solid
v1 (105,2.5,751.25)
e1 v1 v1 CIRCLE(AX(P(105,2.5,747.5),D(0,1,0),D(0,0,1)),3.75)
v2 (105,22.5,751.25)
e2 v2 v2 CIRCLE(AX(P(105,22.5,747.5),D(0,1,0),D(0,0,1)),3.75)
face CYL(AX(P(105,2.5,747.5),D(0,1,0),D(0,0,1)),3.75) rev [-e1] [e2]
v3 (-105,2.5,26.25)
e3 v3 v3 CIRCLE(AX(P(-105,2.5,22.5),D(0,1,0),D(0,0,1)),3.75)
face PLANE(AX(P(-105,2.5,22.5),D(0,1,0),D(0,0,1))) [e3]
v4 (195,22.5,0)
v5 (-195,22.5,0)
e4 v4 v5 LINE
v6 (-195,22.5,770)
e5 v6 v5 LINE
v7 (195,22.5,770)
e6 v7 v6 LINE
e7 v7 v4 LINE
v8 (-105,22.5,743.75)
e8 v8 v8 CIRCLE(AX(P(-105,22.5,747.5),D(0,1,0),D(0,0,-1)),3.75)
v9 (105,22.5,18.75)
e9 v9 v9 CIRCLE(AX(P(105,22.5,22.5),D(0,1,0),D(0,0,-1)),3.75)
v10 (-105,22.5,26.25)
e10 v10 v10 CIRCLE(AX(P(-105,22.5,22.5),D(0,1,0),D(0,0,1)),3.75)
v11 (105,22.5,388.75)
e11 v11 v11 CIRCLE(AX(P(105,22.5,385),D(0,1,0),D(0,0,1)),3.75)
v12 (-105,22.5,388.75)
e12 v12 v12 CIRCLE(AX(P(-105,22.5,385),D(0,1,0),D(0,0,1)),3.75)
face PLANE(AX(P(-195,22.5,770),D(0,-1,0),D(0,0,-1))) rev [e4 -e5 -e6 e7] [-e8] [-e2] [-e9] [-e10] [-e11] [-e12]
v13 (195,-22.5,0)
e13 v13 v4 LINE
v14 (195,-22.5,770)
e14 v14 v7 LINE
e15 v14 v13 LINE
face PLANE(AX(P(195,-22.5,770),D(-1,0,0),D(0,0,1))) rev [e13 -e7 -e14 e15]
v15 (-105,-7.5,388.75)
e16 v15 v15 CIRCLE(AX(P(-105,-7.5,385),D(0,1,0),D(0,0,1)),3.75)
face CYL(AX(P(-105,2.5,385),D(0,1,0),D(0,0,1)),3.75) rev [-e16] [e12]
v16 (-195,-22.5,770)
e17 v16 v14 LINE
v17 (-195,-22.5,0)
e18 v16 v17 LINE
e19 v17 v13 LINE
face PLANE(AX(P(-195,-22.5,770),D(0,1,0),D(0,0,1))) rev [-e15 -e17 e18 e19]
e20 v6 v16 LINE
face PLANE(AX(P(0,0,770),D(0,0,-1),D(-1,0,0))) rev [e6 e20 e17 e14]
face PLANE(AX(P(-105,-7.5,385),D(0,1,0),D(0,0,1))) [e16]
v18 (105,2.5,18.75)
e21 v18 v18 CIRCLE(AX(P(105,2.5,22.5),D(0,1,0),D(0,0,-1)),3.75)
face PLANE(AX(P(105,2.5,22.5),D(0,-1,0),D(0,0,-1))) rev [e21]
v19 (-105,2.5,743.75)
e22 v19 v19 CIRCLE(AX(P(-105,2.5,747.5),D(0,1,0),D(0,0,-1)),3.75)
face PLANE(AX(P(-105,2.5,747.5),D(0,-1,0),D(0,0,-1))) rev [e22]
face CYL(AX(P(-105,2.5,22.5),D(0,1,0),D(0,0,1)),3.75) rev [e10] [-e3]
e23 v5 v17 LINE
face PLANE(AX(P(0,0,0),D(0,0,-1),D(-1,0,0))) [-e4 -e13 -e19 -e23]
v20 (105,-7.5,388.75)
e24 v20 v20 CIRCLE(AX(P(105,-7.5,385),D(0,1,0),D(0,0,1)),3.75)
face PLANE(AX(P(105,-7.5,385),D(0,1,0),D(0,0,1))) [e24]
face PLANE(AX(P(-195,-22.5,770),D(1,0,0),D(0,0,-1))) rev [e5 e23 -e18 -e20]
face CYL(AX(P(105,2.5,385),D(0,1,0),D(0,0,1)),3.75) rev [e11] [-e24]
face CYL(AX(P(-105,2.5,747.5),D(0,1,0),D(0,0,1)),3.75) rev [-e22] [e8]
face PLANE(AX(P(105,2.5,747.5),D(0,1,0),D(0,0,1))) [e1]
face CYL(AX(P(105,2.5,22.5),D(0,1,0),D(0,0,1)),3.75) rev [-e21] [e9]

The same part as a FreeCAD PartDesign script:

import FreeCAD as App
import Part
import Sketcher

V = App.Vector
Q = App.Units.Quantity


def add_polygon(sketch, points):
    """Adds a closed chain of lines whose ends are joined by coincident constraints."""
    first, n = sketch.GeometryCount, len(points)
    for a, b in zip(points, points[1:] + points[:1]):
        sketch.addGeometry(Part.LineSegment(App.Vector(*a, 0), App.Vector(*b, 0)), False)
    for i in range(n):
        sketch.addConstraint(Sketcher.Constraint("Coincident", first + i, 2, first + (i + 1) % n, 1))

doc = App.newDocument("Part")
body = doc.addObject("PartDesign::Body", "Body")

# Sketch on XY plane
sketch1 = body.newObject("Sketcher::SketchObject", "Sketch")
sketch1.AttachmentSupport = (doc.getObject("XY_Plane"), [""])
sketch1.MapMode = "FlatFace"
add_polygon(sketch1, [(-195, 22), (-195, -22), (195, -22), (195, 22)])  # lines 0-3
sketch1.addConstraint(Sketcher.Constraint("Vertical", 0))
sketch1.addConstraint(Sketcher.Constraint("Horizontal", 1))
sketch1.addConstraint(Sketcher.Constraint("Vertical", 2))
sketch1.addConstraint(Sketcher.Constraint("Horizontal", 3))
sketch1.addConstraint(Sketcher.Constraint("Symmetric", 0, 2, 2, 2, -1, 1))
sketch1.addConstraint(Sketcher.Constraint("DistanceX", 1, 1, 1, 2, Q("390 mm")))
sketch1.addConstraint(Sketcher.Constraint("DistanceY", 0, 2, 0, 1, Q("45 mm")))
pad1 = body.newObject("PartDesign::Pad", "Pad")
pad1.Profile = sketch1
pad1.Length = 770

# Sketch on XZ plane
sketch2 = body.newObject("Sketcher::SketchObject", "Sketch001")
sketch2.AttachmentSupport = (doc.getObject("XZ_Plane"), [""])
sketch2.MapMode = "FlatFace"
sketch2.AttachmentOffset = App.Placement(V(0, 0, -22.5), App.Rotation())
sketch2.addGeometry(Part.Circle(V(-105, 22.5, 0), V(0, 0, 1), 3.8), False)
sketch2.addGeometry(Part.Circle(V(105, 22.5, 0), V(0, 0, 1), 3.8), False)
sketch2.addGeometry(Part.Circle(V(105, 747.5, 0), V(0, 0, 1), 3.8), False)
sketch2.addGeometry(Part.Circle(V(-105, 747.5, 0), V(0, 0, 1), 3.8), False)
sketch2.addGeometry(Part.Circle(V(-105, 385, 0), V(0, 0, 1), 3.8), False)
sketch2.addGeometry(Part.Circle(V(105, 385, 0), V(0, 0, 1), 3.8), False)
sketch2.addConstraint(Sketcher.Constraint("Equal", 0, 1))
sketch2.addConstraint(Sketcher.Constraint("Equal", 1, 2))
sketch2.addConstraint(Sketcher.Constraint("Equal", 2, 3))
sketch2.addConstraint(Sketcher.Constraint("Equal", 3, 4))
sketch2.addConstraint(Sketcher.Constraint("Equal", 4, 5))
sketch2.addConstraint(Sketcher.Constraint("Symmetric", 0, 3, 1, 3, -2))
sketch2.addConstraint(Sketcher.Constraint("Symmetric", 2, 3, 3, 3, -2))
sketch2.addConstraint(Sketcher.Constraint("Symmetric", 4, 3, 5, 3, -2))
sketch2.addConstraint(Sketcher.Constraint("Vertical", 1, 3, 2, 3))
sketch2.addConstraint(Sketcher.Constraint("Vertical", 3, 3, 4, 3))
sketch2.addConstraint(Sketcher.Constraint("Diameter", 0, Q("7.5 mm")))
sketch2.addConstraint(Sketcher.Constraint("DistanceX", 0, 3, -1, 1, Q("105 mm")))
sketch2.addConstraint(Sketcher.Constraint("DistanceY", -1, 1, 4, 3, Q("385 mm")))
sketch2.addConstraint(Sketcher.Constraint("DistanceY", 1, 3, 2, 3, Q("725 mm")))
sketch2.addConstraint(Sketcher.Constraint("DistanceY", -1, 1, 0, 3, Q("22.5 mm")))
pocket1 = body.newObject("PartDesign::Pocket", "Pocket")
pocket1.Profile = sketch2
pocket1.Length = 20
pocket1.Reversed = True

# Sketch on XZ plane
sketch3 = body.newObject("Sketcher::SketchObject", "Sketch002")
sketch3.AttachmentSupport = (doc.getObject("XZ_Plane"), [""])
sketch3.MapMode = "FlatFace"
sketch3.AttachmentOffset = App.Placement(V(0, 0, -22.5), App.Rotation())
sketch3.addGeometry(Part.Circle(V(-105, 385, 0), V(0, 0, 1), 3.8), False)
sketch3.addGeometry(Part.Circle(V(105, 385, 0), V(0, 0, 1), 3.8), False)
sketch3.addConstraint(Sketcher.Constraint("Equal", 0, 1))
sketch3.addConstraint(Sketcher.Constraint("Symmetric", 0, 3, 1, 3, -2))
sketch3.addConstraint(Sketcher.Constraint("Diameter", 0, Q("7.5 mm")))
sketch3.addConstraint(Sketcher.Constraint("DistanceX", 0, 3, -1, 1, Q("105 mm")))
sketch3.addConstraint(Sketcher.Constraint("DistanceY", -1, 1, 0, 3, Q("385 mm")))
pocket2 = body.newObject("PartDesign::Pocket", "Pocket001")
pocket2.Profile = sketch3
pocket2.Length = 30
pocket2.Reversed = True

doc.recompute()
